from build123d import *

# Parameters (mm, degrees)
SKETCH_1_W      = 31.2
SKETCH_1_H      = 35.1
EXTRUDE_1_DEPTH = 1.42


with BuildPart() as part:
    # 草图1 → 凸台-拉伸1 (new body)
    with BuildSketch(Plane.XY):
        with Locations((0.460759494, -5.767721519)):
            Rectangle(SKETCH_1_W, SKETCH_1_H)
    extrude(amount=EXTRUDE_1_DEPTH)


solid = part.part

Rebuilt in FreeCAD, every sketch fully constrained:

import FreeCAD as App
import Part
import Sketcher

V = App.Vector


def add_polygon(sketch, points):
    """Adds a closed chain of lines whose ends are joined by coincident constraints."""
    first, n = sketch.GeometryCount, len(points)
    for a, b in zip(points, points[1:] + points[:1]):
        sketch.addGeometry(Part.LineSegment(App.Vector(*a, 0), App.Vector(*b, 0)), False)
    for i in range(n):
        sketch.addConstraint(Sketcher.Constraint("Coincident", first + i, 2, first + (i + 1) % n, 1))

doc = App.newDocument("Part")
body = doc.addObject("PartDesign::Body", "Body")

# Sketch on XY plane
sketch1 = body.newObject("Sketcher::SketchObject", "Sketch")
sketch1.AttachmentSupport = (doc.getObject("XY_Plane"), [""])
sketch1.MapMode = "FlatFace"
add_polygon(sketch1, [(-15.139241, 11.782278), (-15.139241, -23.317722), (16.060759, -23.317722), (16.060759, 11.782278)])  # lines 0-3
sketch1.addConstraint([
    Sketcher.Constraint("Vertical", 0),
    Sketcher.Constraint("Horizontal", 1),
    Sketcher.Constraint("Vertical", 2),
    Sketcher.Constraint("Horizontal", 3),
    Sketcher.Constraint("DistanceX", 1, 1, 1, 2, 31.2),
    Sketcher.Constraint("DistanceY", 0, 2, 0, 1, 35.1),
    Sketcher.Constraint("DistanceX", 0, 2, -1, 1, 15.139241),
    Sketcher.Constraint("DistanceY", 0, 2, -1, 1, 23.317722),
])
pad1 = body.newObject("PartDesign::Pad", "Pad")
pad1.Profile = sketch1
pad1.Length = 1.42

doc.recompute()
